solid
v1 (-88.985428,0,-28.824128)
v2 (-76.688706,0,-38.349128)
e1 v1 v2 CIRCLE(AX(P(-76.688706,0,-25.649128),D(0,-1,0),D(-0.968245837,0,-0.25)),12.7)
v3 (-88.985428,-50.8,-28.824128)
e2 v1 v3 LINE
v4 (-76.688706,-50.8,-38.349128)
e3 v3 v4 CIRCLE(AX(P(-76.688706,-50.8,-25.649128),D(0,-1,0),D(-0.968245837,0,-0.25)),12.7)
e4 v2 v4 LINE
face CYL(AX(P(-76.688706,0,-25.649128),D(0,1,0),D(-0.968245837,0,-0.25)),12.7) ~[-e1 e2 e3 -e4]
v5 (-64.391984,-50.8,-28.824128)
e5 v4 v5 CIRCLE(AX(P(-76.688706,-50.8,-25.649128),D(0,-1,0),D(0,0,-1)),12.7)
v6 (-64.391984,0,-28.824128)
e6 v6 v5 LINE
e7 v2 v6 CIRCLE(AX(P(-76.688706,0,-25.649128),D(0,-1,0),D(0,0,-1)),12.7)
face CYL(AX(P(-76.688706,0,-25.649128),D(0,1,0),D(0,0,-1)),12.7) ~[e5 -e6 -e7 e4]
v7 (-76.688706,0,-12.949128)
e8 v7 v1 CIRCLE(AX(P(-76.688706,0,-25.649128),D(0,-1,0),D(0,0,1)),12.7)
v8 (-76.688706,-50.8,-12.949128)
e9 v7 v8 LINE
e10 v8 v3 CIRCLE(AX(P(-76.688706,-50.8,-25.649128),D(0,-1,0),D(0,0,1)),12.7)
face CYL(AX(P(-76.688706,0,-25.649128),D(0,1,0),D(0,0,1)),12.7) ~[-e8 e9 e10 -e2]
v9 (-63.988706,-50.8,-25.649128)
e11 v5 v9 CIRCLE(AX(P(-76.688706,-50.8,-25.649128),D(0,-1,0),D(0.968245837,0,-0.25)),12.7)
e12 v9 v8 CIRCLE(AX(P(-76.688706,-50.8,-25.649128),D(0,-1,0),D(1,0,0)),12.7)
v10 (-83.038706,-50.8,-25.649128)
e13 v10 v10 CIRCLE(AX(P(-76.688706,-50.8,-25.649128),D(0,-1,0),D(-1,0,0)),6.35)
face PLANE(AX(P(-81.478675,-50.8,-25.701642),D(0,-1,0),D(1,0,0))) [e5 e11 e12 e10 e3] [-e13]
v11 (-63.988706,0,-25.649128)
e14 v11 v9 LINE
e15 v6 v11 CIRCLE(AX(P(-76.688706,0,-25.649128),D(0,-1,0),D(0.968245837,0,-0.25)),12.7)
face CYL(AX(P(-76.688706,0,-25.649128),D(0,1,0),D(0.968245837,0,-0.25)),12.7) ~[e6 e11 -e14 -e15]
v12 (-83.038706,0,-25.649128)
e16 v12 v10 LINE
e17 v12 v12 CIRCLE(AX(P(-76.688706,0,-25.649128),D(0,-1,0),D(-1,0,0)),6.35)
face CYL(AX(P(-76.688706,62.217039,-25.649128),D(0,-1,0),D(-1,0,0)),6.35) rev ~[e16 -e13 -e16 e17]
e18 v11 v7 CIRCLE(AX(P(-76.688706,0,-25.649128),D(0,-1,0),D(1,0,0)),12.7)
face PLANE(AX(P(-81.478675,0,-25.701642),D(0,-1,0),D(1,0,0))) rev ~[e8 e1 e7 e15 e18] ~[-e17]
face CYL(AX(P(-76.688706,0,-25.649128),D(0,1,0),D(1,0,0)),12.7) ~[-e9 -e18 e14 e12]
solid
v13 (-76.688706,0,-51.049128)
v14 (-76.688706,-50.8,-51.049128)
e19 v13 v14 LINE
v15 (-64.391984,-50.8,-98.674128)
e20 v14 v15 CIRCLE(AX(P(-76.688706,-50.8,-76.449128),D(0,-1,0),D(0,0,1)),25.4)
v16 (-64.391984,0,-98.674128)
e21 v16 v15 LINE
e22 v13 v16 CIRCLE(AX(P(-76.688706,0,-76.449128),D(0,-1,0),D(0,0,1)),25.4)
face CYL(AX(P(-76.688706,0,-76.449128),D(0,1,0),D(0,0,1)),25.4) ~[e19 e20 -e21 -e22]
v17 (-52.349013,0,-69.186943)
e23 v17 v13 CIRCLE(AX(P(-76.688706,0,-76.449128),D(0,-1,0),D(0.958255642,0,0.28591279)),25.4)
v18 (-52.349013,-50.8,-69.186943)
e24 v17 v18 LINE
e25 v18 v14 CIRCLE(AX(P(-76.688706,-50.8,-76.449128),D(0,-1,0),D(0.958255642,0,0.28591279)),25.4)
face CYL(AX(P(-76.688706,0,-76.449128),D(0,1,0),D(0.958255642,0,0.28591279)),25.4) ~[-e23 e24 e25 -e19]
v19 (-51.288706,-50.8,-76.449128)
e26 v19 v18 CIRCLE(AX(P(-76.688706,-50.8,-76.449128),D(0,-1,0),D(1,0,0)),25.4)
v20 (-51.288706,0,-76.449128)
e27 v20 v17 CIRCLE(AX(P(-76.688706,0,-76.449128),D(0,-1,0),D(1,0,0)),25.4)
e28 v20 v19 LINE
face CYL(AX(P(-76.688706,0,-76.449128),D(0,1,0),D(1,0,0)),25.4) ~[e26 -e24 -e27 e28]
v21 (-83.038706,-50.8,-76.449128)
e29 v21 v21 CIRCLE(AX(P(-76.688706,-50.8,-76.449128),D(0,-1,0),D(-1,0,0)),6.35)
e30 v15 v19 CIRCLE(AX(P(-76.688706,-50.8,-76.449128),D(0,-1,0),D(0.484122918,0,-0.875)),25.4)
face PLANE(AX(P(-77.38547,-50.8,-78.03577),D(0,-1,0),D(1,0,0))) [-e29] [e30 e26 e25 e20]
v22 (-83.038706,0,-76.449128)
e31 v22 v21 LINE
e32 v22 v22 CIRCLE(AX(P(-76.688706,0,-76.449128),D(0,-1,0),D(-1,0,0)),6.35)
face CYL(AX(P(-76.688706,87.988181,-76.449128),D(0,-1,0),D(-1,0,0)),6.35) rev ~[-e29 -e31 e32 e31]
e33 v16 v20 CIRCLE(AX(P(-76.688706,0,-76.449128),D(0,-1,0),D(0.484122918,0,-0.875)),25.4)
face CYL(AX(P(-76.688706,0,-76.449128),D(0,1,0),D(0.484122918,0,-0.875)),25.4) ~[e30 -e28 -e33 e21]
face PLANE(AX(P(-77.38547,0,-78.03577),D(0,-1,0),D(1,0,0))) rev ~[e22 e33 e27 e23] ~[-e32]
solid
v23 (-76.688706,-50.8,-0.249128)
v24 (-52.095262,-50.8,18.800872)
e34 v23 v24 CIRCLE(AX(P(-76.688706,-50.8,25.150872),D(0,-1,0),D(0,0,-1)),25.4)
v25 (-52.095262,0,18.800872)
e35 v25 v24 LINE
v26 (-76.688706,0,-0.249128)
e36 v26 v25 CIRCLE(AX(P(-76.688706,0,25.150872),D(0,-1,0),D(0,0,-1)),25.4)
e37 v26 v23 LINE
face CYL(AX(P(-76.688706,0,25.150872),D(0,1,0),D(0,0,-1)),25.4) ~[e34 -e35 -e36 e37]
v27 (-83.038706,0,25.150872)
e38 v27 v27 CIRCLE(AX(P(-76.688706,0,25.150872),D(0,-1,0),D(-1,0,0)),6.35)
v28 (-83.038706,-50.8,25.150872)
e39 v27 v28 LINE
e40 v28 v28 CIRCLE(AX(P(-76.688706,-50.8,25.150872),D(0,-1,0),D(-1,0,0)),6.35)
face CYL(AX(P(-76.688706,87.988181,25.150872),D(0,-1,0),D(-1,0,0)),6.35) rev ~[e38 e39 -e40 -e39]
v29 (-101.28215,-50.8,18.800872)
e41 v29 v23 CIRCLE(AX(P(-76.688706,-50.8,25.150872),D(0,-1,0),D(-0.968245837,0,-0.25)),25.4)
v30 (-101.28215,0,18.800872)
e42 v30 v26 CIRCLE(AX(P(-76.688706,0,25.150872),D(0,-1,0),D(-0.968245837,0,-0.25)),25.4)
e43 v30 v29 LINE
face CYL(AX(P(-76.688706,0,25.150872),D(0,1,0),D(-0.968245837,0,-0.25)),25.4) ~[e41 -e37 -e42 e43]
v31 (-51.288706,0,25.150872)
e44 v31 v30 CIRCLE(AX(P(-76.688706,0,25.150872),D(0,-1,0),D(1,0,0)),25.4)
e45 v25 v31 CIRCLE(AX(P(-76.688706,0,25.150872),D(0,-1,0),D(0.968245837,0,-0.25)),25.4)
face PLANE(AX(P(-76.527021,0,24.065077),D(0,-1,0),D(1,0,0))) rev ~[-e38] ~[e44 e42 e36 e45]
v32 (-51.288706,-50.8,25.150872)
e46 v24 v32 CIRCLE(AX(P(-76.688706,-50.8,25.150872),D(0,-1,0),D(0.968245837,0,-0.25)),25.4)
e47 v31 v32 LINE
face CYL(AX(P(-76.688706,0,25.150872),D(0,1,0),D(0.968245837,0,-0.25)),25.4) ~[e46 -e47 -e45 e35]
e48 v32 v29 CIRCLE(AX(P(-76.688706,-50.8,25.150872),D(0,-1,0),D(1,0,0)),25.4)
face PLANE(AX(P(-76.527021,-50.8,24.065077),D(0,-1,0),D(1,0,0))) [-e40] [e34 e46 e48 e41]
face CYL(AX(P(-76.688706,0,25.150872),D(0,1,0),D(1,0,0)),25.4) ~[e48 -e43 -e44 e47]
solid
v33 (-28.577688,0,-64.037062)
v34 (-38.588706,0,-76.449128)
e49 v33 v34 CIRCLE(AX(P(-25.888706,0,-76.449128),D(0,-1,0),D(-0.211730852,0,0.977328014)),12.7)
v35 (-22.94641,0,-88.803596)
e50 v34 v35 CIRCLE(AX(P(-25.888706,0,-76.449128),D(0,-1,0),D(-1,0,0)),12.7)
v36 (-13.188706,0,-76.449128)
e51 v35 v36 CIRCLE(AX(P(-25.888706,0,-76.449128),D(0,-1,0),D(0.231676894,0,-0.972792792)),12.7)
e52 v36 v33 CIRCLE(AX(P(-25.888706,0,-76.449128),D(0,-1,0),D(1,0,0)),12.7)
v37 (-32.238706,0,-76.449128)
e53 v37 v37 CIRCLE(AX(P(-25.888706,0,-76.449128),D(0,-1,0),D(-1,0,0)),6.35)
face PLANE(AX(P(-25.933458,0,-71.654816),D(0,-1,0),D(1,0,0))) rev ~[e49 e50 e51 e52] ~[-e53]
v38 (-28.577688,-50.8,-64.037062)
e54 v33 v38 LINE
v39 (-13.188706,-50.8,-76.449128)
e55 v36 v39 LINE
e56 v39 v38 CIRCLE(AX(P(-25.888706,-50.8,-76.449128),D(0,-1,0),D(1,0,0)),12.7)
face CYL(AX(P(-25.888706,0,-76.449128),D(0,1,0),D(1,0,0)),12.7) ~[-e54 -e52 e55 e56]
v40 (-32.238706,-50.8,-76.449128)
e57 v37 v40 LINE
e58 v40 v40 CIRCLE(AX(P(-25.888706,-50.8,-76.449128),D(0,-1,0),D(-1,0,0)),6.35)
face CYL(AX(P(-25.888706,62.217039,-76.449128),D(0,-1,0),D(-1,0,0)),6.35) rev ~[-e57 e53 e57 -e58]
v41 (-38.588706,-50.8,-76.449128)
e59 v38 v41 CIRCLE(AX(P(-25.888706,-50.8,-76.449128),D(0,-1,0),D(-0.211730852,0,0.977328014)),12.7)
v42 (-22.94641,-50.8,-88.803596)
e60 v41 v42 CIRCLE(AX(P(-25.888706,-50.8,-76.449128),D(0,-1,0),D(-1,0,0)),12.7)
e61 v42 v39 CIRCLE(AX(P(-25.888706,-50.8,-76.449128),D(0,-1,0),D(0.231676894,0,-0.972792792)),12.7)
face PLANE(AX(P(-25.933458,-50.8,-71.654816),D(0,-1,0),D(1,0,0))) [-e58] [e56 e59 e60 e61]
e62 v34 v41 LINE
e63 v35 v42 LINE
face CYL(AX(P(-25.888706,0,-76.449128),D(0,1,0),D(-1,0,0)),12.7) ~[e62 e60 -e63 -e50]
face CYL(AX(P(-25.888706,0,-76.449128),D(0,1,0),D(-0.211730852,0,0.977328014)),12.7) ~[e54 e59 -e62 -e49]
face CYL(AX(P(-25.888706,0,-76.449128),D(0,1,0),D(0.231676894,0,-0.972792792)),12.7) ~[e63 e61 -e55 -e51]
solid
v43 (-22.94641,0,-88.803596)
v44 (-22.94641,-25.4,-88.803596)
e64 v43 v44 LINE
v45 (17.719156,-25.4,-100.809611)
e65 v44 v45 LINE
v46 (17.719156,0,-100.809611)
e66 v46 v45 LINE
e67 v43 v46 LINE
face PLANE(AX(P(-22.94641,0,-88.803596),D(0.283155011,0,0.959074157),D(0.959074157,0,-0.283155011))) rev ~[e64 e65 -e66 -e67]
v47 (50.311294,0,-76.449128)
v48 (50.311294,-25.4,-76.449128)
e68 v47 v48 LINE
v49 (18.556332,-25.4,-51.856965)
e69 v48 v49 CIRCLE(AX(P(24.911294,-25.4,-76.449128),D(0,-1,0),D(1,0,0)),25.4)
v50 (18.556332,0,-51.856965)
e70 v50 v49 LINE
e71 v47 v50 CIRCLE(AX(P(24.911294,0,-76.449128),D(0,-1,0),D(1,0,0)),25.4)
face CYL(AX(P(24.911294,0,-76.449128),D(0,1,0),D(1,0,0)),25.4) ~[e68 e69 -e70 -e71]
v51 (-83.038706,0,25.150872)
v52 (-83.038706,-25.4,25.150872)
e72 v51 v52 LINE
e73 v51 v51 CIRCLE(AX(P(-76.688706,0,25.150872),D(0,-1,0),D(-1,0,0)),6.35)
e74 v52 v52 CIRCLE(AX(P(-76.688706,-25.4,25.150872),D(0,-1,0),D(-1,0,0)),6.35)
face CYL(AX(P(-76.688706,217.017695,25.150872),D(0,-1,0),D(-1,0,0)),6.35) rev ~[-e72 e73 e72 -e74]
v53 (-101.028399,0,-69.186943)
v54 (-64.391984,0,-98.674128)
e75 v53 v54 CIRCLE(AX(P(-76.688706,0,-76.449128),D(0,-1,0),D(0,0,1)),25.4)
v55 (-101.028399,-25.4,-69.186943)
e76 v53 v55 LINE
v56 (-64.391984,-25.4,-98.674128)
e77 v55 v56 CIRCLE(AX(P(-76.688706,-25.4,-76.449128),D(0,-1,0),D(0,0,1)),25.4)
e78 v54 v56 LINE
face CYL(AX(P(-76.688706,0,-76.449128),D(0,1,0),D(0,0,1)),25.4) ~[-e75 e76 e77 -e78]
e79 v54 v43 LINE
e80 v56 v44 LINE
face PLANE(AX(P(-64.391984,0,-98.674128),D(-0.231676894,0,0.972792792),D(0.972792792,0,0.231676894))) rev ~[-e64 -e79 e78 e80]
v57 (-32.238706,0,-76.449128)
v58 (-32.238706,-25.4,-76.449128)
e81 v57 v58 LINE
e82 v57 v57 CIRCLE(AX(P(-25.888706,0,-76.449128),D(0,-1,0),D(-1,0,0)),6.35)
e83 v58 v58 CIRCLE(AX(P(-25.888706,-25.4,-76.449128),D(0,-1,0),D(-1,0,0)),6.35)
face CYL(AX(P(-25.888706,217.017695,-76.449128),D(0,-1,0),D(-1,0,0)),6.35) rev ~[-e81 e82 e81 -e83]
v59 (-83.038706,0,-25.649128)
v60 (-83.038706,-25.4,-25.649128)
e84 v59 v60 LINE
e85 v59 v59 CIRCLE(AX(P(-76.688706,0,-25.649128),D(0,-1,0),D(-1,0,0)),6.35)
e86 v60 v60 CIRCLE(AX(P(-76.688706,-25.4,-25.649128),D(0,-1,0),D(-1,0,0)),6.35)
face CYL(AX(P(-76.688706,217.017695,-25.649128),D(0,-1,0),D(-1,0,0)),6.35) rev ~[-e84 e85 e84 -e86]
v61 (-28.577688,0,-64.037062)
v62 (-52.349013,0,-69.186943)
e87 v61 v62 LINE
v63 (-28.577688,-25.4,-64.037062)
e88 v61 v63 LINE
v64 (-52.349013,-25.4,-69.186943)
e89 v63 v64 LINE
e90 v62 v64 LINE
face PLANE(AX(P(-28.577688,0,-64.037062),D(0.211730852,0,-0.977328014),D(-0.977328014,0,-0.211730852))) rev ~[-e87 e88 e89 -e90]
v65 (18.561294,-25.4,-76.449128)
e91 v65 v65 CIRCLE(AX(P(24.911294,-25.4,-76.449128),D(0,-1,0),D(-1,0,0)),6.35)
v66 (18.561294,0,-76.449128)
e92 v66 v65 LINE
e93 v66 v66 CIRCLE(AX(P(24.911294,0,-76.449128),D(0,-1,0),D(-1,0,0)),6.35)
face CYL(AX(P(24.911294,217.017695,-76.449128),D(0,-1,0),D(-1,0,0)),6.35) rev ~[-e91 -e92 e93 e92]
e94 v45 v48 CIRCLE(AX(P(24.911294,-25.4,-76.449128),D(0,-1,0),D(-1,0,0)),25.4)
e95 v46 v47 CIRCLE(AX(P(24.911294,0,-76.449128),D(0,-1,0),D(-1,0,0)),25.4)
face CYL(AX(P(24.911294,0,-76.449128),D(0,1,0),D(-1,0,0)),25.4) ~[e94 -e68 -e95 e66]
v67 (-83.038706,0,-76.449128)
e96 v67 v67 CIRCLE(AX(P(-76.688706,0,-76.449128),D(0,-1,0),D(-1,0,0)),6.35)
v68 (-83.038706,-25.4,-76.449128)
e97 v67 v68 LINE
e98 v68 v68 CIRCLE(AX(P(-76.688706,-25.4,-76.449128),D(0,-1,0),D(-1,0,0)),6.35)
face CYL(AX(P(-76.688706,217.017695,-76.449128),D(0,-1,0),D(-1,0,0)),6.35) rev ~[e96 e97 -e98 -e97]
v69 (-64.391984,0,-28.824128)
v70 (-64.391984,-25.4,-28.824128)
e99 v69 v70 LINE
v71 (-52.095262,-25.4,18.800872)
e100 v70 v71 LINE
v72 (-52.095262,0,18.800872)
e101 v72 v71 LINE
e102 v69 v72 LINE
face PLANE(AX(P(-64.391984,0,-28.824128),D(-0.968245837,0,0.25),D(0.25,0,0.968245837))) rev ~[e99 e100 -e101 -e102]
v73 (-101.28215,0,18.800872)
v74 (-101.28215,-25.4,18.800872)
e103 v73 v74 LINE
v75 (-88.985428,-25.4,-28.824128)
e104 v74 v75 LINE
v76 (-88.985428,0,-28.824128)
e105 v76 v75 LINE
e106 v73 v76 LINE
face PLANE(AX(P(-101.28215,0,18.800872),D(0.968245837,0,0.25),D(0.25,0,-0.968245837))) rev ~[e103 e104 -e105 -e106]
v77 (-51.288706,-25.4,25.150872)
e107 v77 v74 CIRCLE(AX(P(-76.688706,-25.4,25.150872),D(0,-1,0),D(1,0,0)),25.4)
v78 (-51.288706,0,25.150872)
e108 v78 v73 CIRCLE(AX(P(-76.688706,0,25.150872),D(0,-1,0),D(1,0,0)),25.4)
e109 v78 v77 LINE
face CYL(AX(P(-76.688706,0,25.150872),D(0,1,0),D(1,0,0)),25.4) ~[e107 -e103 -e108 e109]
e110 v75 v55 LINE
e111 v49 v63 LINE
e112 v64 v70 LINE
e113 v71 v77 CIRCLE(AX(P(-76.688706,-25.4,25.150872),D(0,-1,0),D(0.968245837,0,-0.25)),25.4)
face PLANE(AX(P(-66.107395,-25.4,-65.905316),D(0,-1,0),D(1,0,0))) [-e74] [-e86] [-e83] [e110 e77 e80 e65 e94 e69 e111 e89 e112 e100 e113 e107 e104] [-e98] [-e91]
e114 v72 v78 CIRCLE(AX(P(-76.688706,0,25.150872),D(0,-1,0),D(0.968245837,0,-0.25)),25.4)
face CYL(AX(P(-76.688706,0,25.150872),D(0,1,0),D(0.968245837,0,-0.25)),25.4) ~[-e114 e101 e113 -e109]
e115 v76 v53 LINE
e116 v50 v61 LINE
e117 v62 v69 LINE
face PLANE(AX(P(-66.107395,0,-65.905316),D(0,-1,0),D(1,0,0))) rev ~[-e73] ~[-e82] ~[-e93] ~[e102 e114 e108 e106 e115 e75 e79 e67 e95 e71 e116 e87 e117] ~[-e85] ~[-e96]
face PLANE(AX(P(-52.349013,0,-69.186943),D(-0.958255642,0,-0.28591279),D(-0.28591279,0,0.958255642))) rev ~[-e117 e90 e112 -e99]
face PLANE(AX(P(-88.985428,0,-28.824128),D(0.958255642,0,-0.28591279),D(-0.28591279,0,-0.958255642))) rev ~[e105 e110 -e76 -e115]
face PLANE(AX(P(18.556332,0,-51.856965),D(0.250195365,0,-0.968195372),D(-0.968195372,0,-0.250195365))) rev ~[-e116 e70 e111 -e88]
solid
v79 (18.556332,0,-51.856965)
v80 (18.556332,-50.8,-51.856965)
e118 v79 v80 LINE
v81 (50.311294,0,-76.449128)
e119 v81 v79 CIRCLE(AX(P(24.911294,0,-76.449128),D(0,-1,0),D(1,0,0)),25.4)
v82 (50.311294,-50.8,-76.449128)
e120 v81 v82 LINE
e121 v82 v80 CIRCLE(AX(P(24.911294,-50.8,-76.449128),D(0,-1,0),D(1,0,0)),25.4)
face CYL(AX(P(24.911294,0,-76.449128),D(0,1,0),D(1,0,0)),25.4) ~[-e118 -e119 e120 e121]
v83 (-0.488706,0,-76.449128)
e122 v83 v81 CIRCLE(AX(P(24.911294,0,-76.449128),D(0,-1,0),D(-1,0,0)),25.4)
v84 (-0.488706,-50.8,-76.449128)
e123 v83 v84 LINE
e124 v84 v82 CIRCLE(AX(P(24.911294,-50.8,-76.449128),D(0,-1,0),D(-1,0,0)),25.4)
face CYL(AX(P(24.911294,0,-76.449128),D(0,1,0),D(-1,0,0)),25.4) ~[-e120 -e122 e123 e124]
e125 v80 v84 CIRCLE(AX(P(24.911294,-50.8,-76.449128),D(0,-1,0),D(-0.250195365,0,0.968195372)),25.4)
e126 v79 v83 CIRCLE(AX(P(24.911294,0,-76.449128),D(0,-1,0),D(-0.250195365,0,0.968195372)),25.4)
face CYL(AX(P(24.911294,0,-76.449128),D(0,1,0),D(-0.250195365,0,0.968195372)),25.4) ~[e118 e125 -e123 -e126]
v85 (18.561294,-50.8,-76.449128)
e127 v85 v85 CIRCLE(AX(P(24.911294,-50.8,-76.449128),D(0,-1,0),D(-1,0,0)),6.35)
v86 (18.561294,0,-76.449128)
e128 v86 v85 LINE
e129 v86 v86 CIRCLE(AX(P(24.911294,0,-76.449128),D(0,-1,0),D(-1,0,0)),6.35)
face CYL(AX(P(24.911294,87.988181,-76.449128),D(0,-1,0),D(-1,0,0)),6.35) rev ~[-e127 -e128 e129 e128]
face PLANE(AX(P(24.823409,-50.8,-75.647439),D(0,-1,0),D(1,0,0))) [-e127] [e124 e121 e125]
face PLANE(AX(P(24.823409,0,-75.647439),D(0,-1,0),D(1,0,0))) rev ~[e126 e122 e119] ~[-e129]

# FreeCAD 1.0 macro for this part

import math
import FreeCAD as App
import Part
import Sketcher

V = App.Vector
Q = App.Units.Quantity

doc = App.newDocument("Part")
params = doc.addObject("Spreadsheet::Sheet", "Params")
for row, (alias, value) in enumerate([
    ("sketch1_radius", "1 in"),
    ("pad1_length", "2 in"),
    ("sketch2_diameter", "0.5 in"),
    ("hole_diameter", "0.5 in"),
    ("sketch3_radius", "1 in"),
    ("pad2_length", "2 in"),
    ("sketch4_diameter", "0.5 in"),
    ("hole2_diameter", "0.5 in"),
    ("sketch5_radius", "0.5 in"),
    ("pad3_length", "2 in"),
    ("sketch6_diameter", "0.5 in"),
    ("hole3_diameter", "0.5 in"),
    ("sketch7_radius", "1 in"),
    ("sketch7_height", "0.875 in"),
    ("pad4_length", "2 in"),
    ("sketch8_diameter", "0.5 in"),
    ("hole4_diameter", "0.5 in"),
    ("sketch9_radius", "0.5 in"),
    ("pad5_length", "2 in"),
    ("sketch10_diameter", "0.5 in"),
    ("hole5_diameter", "0.5 in"),
    ("sketch11_radius", "1 in"),
    ("sketch11_height", "0.875 in"),
    ("pad6_length", "1 in"),
    ("sketch12_diameter", "0.5 in"),
    ("hole6_diameter", "0.5 in"),
], start=1):
    params.set(f"A{row}", alias)
    params.set(f"B{row}", "=" + value)
    params.setAlias(f"B{row}", alias)

body = doc.addObject("PartDesign::Body", "Body")

sketch1 = doc.addObject("Sketcher::SketchObject", "Sketch")
body.addObject(sketch1)
sketch1.AttachmentSupport = (doc.XZ_Plane, [""])
sketch1.MapMode = "FlatFace"
sketch1.addGeometry([
    Part.ArcOfCircle(Part.Circle(V(-77, 25, 0), V(0, 0, 1), 25), math.radians(-90), math.radians(-14)),
    Part.ArcOfCircle(Part.Circle(V(-77, 25, 0), V(0, 0, 1), 25), math.radians(-14.48), math.radians(0)),
    Part.ArcOfCircle(Part.Circle(V(-77, 25, 0), V(0, 0, 1), 25), math.radians(0), math.radians(194)),
    Part.ArcOfCircle(Part.Circle(V(-77, 25, 0), V(0, 0, 1), 25), math.radians(-166), math.radians(-90)),
], False)
sketch1.addConstraint([
    Sketcher.Constraint("Tangent", 0, 2, 1, 1),
    Sketcher.Constraint("Tangent", 1, 2, 2, 1),
    Sketcher.Constraint("Tangent", 2, 2, 3, 1),
    Sketcher.Constraint("Tangent", 3, 2, 0, 1),
    Sketcher.Constraint("Equal", 0, 1),
    Sketcher.Constraint("Horizontal", 3, 3, 1, 2),
    Sketcher.Constraint("Horizontal", 0, 2, 2, 2),
    Sketcher.Constraint("Vertical", 2, 3, 3, 2),
    Sketcher.Constraint("Radius", 0, Q("1 in")),
    Sketcher.Constraint("DistanceY", 0, 2, 1, 3, Q("0.25 in")),
    Sketcher.Constraint("DistanceX", 0, 2, -1, 1, 52.095262),
    Sketcher.Constraint("DistanceY", -1, 1, 0, 3, 25.150872),
])
sketch1.setExpression("Constraints[8]", "Params.sketch1_radius")
pad1 = doc.addObject("PartDesign::Pad", "Pad")
body.addObject(pad1)
pad1.Profile = sketch1
pad1.setExpression("Length", "Params.pad1_length")

sketch2 = doc.addObject("Sketcher::SketchObject", "Sketch001")
body.addObject(sketch2)
sketch2.AttachmentSupport = (doc.XZ_Plane, [""])
sketch2.MapMode = "FlatFace"
sketch2.addGeometry([
    Part.Circle(V(-77, 25, 0), V(0, 0, 1), 6),
    Part.Circle(V(-77, -26, 0), V(0, 0, 1), 6),
    Part.Circle(V(-77, -76, 0), V(0, 0, 1), 6),
    Part.Circle(V(-26, -76, 0), V(0, 0, 1), 6),
    Part.Circle(V(25, -76, 0), V(0, 0, 1), 6),
], False)
sketch2.addConstraint([
    Sketcher.Constraint("Equal", 0, 1),
    Sketcher.Constraint("Equal", 1, 2),
    Sketcher.Constraint("Equal", 2, 3),
    Sketcher.Constraint("Equal", 3, 4),
    Sketcher.Constraint("Horizontal", 2, 3, 3, 3),
    Sketcher.Constraint("Horizontal", 3, 3, 4, 3),
    Sketcher.Constraint("Vertical", 0, 3, 1, 3),
    Sketcher.Constraint("Vertical", 1, 3, 2, 3),
    Sketcher.Constraint("Diameter", 0, Q("0.5 in")),
    Sketcher.Constraint("DistanceY", 1, 3, 0, 3, Q("2 in")),
    Sketcher.Constraint("DistanceY", 2, 3, 1, 3, Q("2 in")),
    Sketcher.Constraint("DistanceX", 2, 3, 3, 3, Q("2 in")),
    Sketcher.Constraint("DistanceX", 3, 3, 4, 3, Q("2 in")),
    Sketcher.Constraint("DistanceX", 0, 3, -1, 1, 76.688706),
    Sketcher.Constraint("DistanceY", -1, 1, 0, 3, 25.150872),
])
sketch2.setExpression("Constraints[8]", "Params.sketch2_diameter")
doc.recompute()
hole = doc.addObject("PartDesign::Hole", "Hole")
body.addObject(hole)
hole.Profile = sketch2
hole.ThreadType = "None"
hole.setExpression("Diameter", "Params.hole_diameter")
hole.DepthType = "ThroughAll"
hole.Reversed = True
body2 = doc.addObject("PartDesign::Body", "Body001")

sketch3 = doc.addObject("Sketcher::SketchObject", "Sketch002")
body2.addObject(sketch3)
sketch3.AttachmentSupport = (doc.getObject("XZ_Plane001"), [""])
sketch3.MapMode = "FlatFace"
sketch3.addGeometry([
    Part.ArcOfCircle(Part.Circle(V(25, -76, 0), V(0, 0, 1), 25), math.radians(0), math.radians(104)),
    Part.ArcOfCircle(Part.Circle(V(25, -76, 0), V(0, 0, 1), 25), math.radians(104), math.radians(180)),
    Part.ArcOfCircle(Part.Circle(V(25, -76, 0), V(0, 0, 1), 25), math.radians(180), math.radians(360)),
], False)
sketch3.addConstraint([
    Sketcher.Constraint("Tangent", 0, 2, 1, 1),
    Sketcher.Constraint("Tangent", 1, 2, 2, 1),
    Sketcher.Constraint("Tangent", 2, 2, 0, 1),
    Sketcher.Constraint("Horizontal", 2, 3, 1, 2),
    Sketcher.Constraint("Horizontal", 1, 2, 2, 2),
    Sketcher.Constraint("Radius", 0, Q("1 in")),
    Sketcher.Constraint("DistanceX", -1, 1, 0, 2, 18.556332),
    Sketcher.Constraint("DistanceX", -1, 1, 0, 3, 24.911294),
    Sketcher.Constraint("DistanceY", 0, 3, -1, 1, 76.449128),
])
sketch3.setExpression("Constraints[5]", "Params.sketch3_radius")
pad2 = doc.addObject("PartDesign::Pad", "Pad001")
body2.addObject(pad2)
pad2.Profile = sketch3
pad2.setExpression("Length", "Params.pad2_length")

sketch4 = doc.addObject("Sketcher::SketchObject", "Sketch003")
body2.addObject(sketch4)
sketch4.AttachmentSupport = (doc.getObject("XZ_Plane001"), [""])
sketch4.MapMode = "FlatFace"
sketch4.addGeometry([
    Part.Circle(V(-77, 25, 0), V(0, 0, 1), 6),
    Part.Circle(V(-77, -26, 0), V(0, 0, 1), 6),
    Part.Circle(V(-77, -76, 0), V(0, 0, 1), 6),
    Part.Circle(V(-26, -76, 0), V(0, 0, 1), 6),
    Part.Circle(V(25, -76, 0), V(0, 0, 1), 6),
], False)
sketch4.addConstraint([
    Sketcher.Constraint("Equal", 0, 1),
    Sketcher.Constraint("Equal", 1, 2),
    Sketcher.Constraint("Equal", 2, 3),
    Sketcher.Constraint("Equal", 3, 4),
    Sketcher.Constraint("Horizontal", 2, 3, 3, 3),
    Sketcher.Constraint("Horizontal", 3, 3, 4, 3),
    Sketcher.Constraint("Vertical", 0, 3, 1, 3),
    Sketcher.Constraint("Vertical", 1, 3, 2, 3),
    Sketcher.Constraint("Diameter", 0, Q("0.5 in")),
    Sketcher.Constraint("DistanceY", 1, 3, 0, 3, Q("2 in")),
    Sketcher.Constraint("DistanceY", 2, 3, 1, 3, Q("2 in")),
    Sketcher.Constraint("DistanceX", 2, 3, 3, 3, Q("2 in")),
    Sketcher.Constraint("DistanceX", 3, 3, 4, 3, Q("2 in")),
    Sketcher.Constraint("DistanceX", 0, 3, -1, 1, 76.688706),
    Sketcher.Constraint("DistanceY", -1, 1, 0, 3, 25.150872),
])
sketch4.setExpression("Constraints[8]", "Params.sketch4_diameter")
doc.recompute()
hole2 = doc.addObject("PartDesign::Hole", "Hole001")
body2.addObject(hole2)
hole2.Profile = sketch4
hole2.ThreadType = "None"
hole2.setExpression("Diameter", "Params.hole2_diameter")
hole2.DepthType = "ThroughAll"
hole2.Reversed = True
body3 = doc.addObject("PartDesign::Body", "Body002")

sketch5 = doc.addObject("Sketcher::SketchObject", "Sketch004")
body3.addObject(sketch5)
sketch5.AttachmentSupport = (doc.getObject("XZ_Plane002"), [""])
sketch5.MapMode = "FlatFace"
sketch5.addGeometry([
    Part.ArcOfCircle(Part.Circle(V(-76.7, -25.6, 0), V(0, 0, 1), 12.7), math.radians(-166), math.radians(-90)),
    Part.ArcOfCircle(Part.Circle(V(-76.7, -25.6, 0), V(0, 0, 1), 12.7), math.radians(-90), math.radians(-14)),
    Part.ArcOfCircle(Part.Circle(V(-76.7, -25.6, 0), V(0, 0, 1), 12.7), math.radians(-14.48), math.radians(0)),
    Part.ArcOfCircle(Part.Circle(V(-76.7, -25.6, 0), V(0, 0, 1), 12.7), math.radians(0), math.radians(90)),
    Part.ArcOfCircle(Part.Circle(V(-76.7, -25.6, 0), V(0, 0, 1), 12.7), math.radians(90), math.radians(194)),
], False)
sketch5.addConstraint([
    Sketcher.Constraint("Tangent", 0, 2, 1, 1),
    Sketcher.Constraint("Tangent", 1, 2, 2, 1),
    Sketcher.Constraint("Tangent", 2, 2, 3, 1),
    Sketcher.Constraint("Tangent", 3, 2, 4, 1),
    Sketcher.Constraint("Tangent", 4, 2, 0, 1),
    Sketcher.Constraint("Coincident", 2, 3, 0, 3),
    Sketcher.Constraint("Horizontal", 4, 3, 2, 2),
    Sketcher.Constraint("Horizontal", 1, 2, 4, 2),
    Sketcher.Constraint("Vertical", 4, 3, 0, 2),
    Sketcher.Constraint("Vertical", 0, 2, 3, 2),
    Sketcher.Constraint("Radius", 0, Q("0.5 in")),
    Sketcher.Constraint("DistanceY", 1, 2, 2, 3, Q("0.125 in")),
    Sketcher.Constraint("DistanceX", 4, 2, -1, 1, 88.985428),
    Sketcher.Constraint("DistanceY", 0, 3, -1, 1, 25.649128),
])
sketch5.setExpression("Constraints[10]", "Params.sketch5_radius")
pad3 = doc.addObject("PartDesign::Pad", "Pad002")
body3.addObject(pad3)
pad3.Profile = sketch5
pad3.setExpression("Length", "Params.pad3_length")

sketch6 = doc.addObject("Sketcher::SketchObject", "Sketch005")
body3.addObject(sketch6)
sketch6.AttachmentSupport = (doc.getObject("XZ_Plane002"), [""])
sketch6.MapMode = "FlatFace"
sketch6.addGeometry([
    Part.Circle(V(-77, 25, 0), V(0, 0, 1), 6),
    Part.Circle(V(-77, -26, 0), V(0, 0, 1), 6),
    Part.Circle(V(-77, -76, 0), V(0, 0, 1), 6),
    Part.Circle(V(-26, -76, 0), V(0, 0, 1), 6),
    Part.Circle(V(25, -76, 0), V(0, 0, 1), 6),
], False)
sketch6.addConstraint([
    Sketcher.Constraint("Equal", 0, 1),
    Sketcher.Constraint("Equal", 1, 2),
    Sketcher.Constraint("Equal", 2, 3),
    Sketcher.Constraint("Equal", 3, 4),
    Sketcher.Constraint("Horizontal", 2, 3, 3, 3),
    Sketcher.Constraint("Horizontal", 3, 3, 4, 3),
    Sketcher.Constraint("Vertical", 0, 3, 1, 3),
    Sketcher.Constraint("Vertical", 1, 3, 2, 3),
    Sketcher.Constraint("Diameter", 0, Q("0.5 in")),
    Sketcher.Constraint("DistanceY", 1, 3, 0, 3, Q("2 in")),
    Sketcher.Constraint("DistanceY", 2, 3, 1, 3, Q("2 in")),
    Sketcher.Constraint("DistanceX", 2, 3, 3, 3, Q("2 in")),
    Sketcher.Constraint("DistanceX", 3, 3, 4, 3, Q("2 in")),
    Sketcher.Constraint("DistanceX", 0, 3, -1, 1, 76.688706),
    Sketcher.Constraint("DistanceY", -1, 1, 0, 3, 25.150872),
])
sketch6.setExpression("Constraints[8]", "Params.sketch6_diameter")
doc.recompute()
hole3 = doc.addObject("PartDesign::Hole", "Hole002")
body3.addObject(hole3)
hole3.Profile = sketch6
hole3.ThreadType = "None"
hole3.setExpression("Diameter", "Params.hole3_diameter")
hole3.DepthType = "ThroughAll"
hole3.Reversed = True
body4 = doc.addObject("PartDesign::Body", "Body003")

sketch7 = doc.addObject("Sketcher::SketchObject", "Sketch006")
body4.addObject(sketch7)
sketch7.AttachmentSupport = (doc.getObject("XZ_Plane003"), [""])
sketch7.MapMode = "FlatFace"
sketch7.addGeometry([
    Part.ArcOfCircle(Part.Circle(V(-77, -76, 0), V(0, 0, 1), 25), math.radians(90), math.radians(299)),
    Part.ArcOfCircle(Part.Circle(V(-77, -76, 0), V(0, 0, 1), 25), math.radians(-61), math.radians(0)),
    Part.ArcOfCircle(Part.Circle(V(-77, -76, 0), V(0, 0, 1), 25), math.radians(0), math.radians(16.61)),
    Part.ArcOfCircle(Part.Circle(V(-77, -76, 0), V(0, 0, 1), 25), math.radians(17), math.radians(90)),
], False)
sketch7.addConstraint([
    Sketcher.Constraint("Tangent", 0, 2, 1, 1),
    Sketcher.Constraint("Tangent", 1, 2, 2, 1),
    Sketcher.Constraint("Tangent", 2, 2, 3, 1),
    Sketcher.Constraint("Tangent", 3, 2, 0, 1),
    Sketcher.Constraint("Equal", 0, 1),
    Sketcher.Constraint("Horizontal", 3, 3, 1, 2),
    Sketcher.Constraint("Vertical", 2, 3, 3, 2),
    Sketcher.Constraint("Radius", 0, Q("1 in")),
    Sketcher.Constraint("DistanceY", 0, 2, 0, 3, Q("0.875 in")),
    Sketcher.Constraint("DistanceX", 0, 3, -1, 1, 76.688706),
    Sketcher.Constraint("DistanceY", 0, 3, -1, 1, 76.449128),
    Sketcher.Constraint("DistanceX", 2, 2, -1, 1, 52.349013),
])
sketch7.setExpression("Constraints[7]", "Params.sketch7_radius")
sketch7.setExpression("Constraints[8]", "Params.sketch7_height")
pad4 = doc.addObject("PartDesign::Pad", "Pad003")
body4.addObject(pad4)
pad4.Profile = sketch7
pad4.setExpression("Length", "Params.pad4_length")

sketch8 = doc.addObject("Sketcher::SketchObject", "Sketch007")
body4.addObject(sketch8)
sketch8.AttachmentSupport = (doc.getObject("XZ_Plane003"), [""])
sketch8.MapMode = "FlatFace"
sketch8.addGeometry([
    Part.Circle(V(-77, 25, 0), V(0, 0, 1), 6),
    Part.Circle(V(-77, -26, 0), V(0, 0, 1), 6),
    Part.Circle(V(-77, -76, 0), V(0, 0, 1), 6),
    Part.Circle(V(-26, -76, 0), V(0, 0, 1), 6),
    Part.Circle(V(25, -76, 0), V(0, 0, 1), 6),
], False)
sketch8.addConstraint([
    Sketcher.Constraint("Equal", 0, 1),
    Sketcher.Constraint("Equal", 1, 2),
    Sketcher.Constraint("Equal", 2, 3),
    Sketcher.Constraint("Equal", 3, 4),
    Sketcher.Constraint("Horizontal", 2, 3, 3, 3),
    Sketcher.Constraint("Horizontal", 3, 3, 4, 3),
    Sketcher.Constraint("Vertical", 0, 3, 1, 3),
    Sketcher.Constraint("Vertical", 1, 3, 2, 3),
    Sketcher.Constraint("Diameter", 0, Q("0.5 in")),
    Sketcher.Constraint("DistanceY", 1, 3, 0, 3, Q("2 in")),
    Sketcher.Constraint("DistanceY", 2, 3, 1, 3, Q("2 in")),
    Sketcher.Constraint("DistanceX", 2, 3, 3, 3, Q("2 in")),
    Sketcher.Constraint("DistanceX", 3, 3, 4, 3, Q("2 in")),
    Sketcher.Constraint("DistanceX", 0, 3, -1, 1, 76.688706),
    Sketcher.Constraint("DistanceY", -1, 1, 0, 3, 25.150872),
])
sketch8.setExpression("Constraints[8]", "Params.sketch8_diameter")
doc.recompute()
hole4 = doc.addObject("PartDesign::Hole", "Hole003")
body4.addObject(hole4)
hole4.Profile = sketch8
hole4.ThreadType = "None"
hole4.setExpression("Diameter", "Params.hole4_diameter")
hole4.DepthType = "ThroughAll"
hole4.Reversed = True
body5 = doc.addObject("PartDesign::Body", "Body004")

sketch9 = doc.addObject("Sketcher::SketchObject", "Sketch008")
body5.addObject(sketch9)
sketch9.AttachmentSupport = (doc.getObject("XZ_Plane004"), [""])
sketch9.MapMode = "FlatFace"
sketch9.addGeometry([
    Part.ArcOfCircle(Part.Circle(V(-26, -76, 0), V(0, 0, 1), 13), math.radians(102), math.radians(180)),
    Part.ArcOfCircle(Part.Circle(V(-26, -76, 0), V(0, 0, 1), 13), math.radians(180), math.radians(283)),
    Part.ArcOfCircle(Part.Circle(V(-26, -76, 0), V(0, 0, 1), 13), math.radians(-77), math.radians(0)),
    Part.ArcOfCircle(Part.Circle(V(-26, -76, 0), V(0, 0, 1), 13), math.radians(0), math.radians(102)),
], False)
sketch9.addConstraint([
    Sketcher.Constraint("Tangent", 0, 2, 1, 1),
    Sketcher.Constraint("Tangent", 1, 2, 2, 1),
    Sketcher.Constraint("Tangent", 2, 2, 3, 1),
    Sketcher.Constraint("Tangent", 3, 2, 0, 1),
    Sketcher.Constraint("Equal", 0, 1),
    Sketcher.Constraint("Horizontal", 3, 3, 0, 2),
    Sketcher.Constraint("Horizontal", 0, 2, 2, 2),
    Sketcher.Constraint("Radius", 0, Q("0.5 in")),
    Sketcher.Constraint("DistanceX", 1, 2, -1, 1, 22.94641),
    Sketcher.Constraint("DistanceY", 1, 2, 0, 3, 12.354468),
    Sketcher.Constraint("DistanceX", 3, 2, 0, 3, 2.688982),
    Sketcher.Constraint("DistanceY", 0, 3, -1, 1, 76.449128),
])
sketch9.setExpression("Constraints[7]", "Params.sketch9_radius")
pad5 = doc.addObject("PartDesign::Pad", "Pad004")
body5.addObject(pad5)
pad5.Profile = sketch9
pad5.setExpression("Length", "Params.pad5_length")

sketch10 = doc.addObject("Sketcher::SketchObject", "Sketch009")
body5.addObject(sketch10)
sketch10.AttachmentSupport = (doc.getObject("XZ_Plane004"), [""])
sketch10.MapMode = "FlatFace"
sketch10.addGeometry([
    Part.Circle(V(-77, 25, 0), V(0, 0, 1), 6),
    Part.Circle(V(-77, -26, 0), V(0, 0, 1), 6),
    Part.Circle(V(-77, -76, 0), V(0, 0, 1), 6),
    Part.Circle(V(-26, -76, 0), V(0, 0, 1), 6),
    Part.Circle(V(25, -76, 0), V(0, 0, 1), 6),
], False)
sketch10.addConstraint([
    Sketcher.Constraint("Equal", 0, 1),
    Sketcher.Constraint("Equal", 1, 2),
    Sketcher.Constraint("Equal", 2, 3),
    Sketcher.Constraint("Equal", 3, 4),
    Sketcher.Constraint("Horizontal", 2, 3, 3, 3),
    Sketcher.Constraint("Horizontal", 3, 3, 4, 3),
    Sketcher.Constraint("Vertical", 0, 3, 1, 3),
    Sketcher.Constraint("Vertical", 1, 3, 2, 3),
    Sketcher.Constraint("Diameter", 0, Q("0.5 in")),
    Sketcher.Constraint("DistanceY", 1, 3, 0, 3, Q("2 in")),
    Sketcher.Constraint("DistanceY", 2, 3, 1, 3, Q("2 in")),
    Sketcher.Constraint("DistanceX", 2, 3, 3, 3, Q("2 in")),
    Sketcher.Constraint("DistanceX", 3, 3, 4, 3, Q("2 in")),
    Sketcher.Constraint("DistanceX", 0, 3, -1, 1, 76.688706),
    Sketcher.Constraint("DistanceY", -1, 1, 0, 3, 25.150872),
])
sketch10.setExpression("Constraints[8]", "Params.sketch10_diameter")
doc.recompute()
hole5 = doc.addObject("PartDesign::Hole", "Hole004")
body5.addObject(hole5)
hole5.Profile = sketch10
hole5.ThreadType = "None"
hole5.setExpression("Diameter", "Params.hole5_diameter")
hole5.DepthType = "ThroughAll"
hole5.Reversed = True
body6 = doc.addObject("PartDesign::Body", "Body005")

sketch11 = doc.addObject("Sketcher::SketchObject", "Sketch010")
body6.addObject(sketch11)
sketch11.AttachmentSupport = (doc.getObject("XZ_Plane005"), [""])
sketch11.MapMode = "FlatFace"
sketch11.addGeometry([
    Part.LineSegment(V(-89, -29, 0), V(-101, -69, 0)),
    Part.ArcOfCircle(Part.Circle(V(-77, -76, 0), V(0, 0, 1), 25), math.radians(163), math.radians(299)),
    Part.LineSegment(V(-64, -99, 0), V(-23, -89, 0)),
    Part.LineSegment(V(-23, -89, 0), V(18, -101, 0)),
    Part.ArcOfCircle(Part.Circle(V(25, -76, 0), V(0, 0, 1), 25), math.radians(-106), math.radians(0)),
    Part.ArcOfCircle(Part.Circle(V(25, -76, 0), V(0, 0, 1), 25), math.radians(0), math.radians(104)),
    Part.LineSegment(V(19, -52, 0), V(-29, -64, 0)),
    Part.LineSegment(V(-29, -64, 0), V(-52, -69, 0)),
    Part.LineSegment(V(-52, -69, 0), V(-64, -29, 0)),
    Part.LineSegment(V(-64, -29, 0), V(-52, 19, 0)),
    Part.ArcOfCircle(Part.Circle(V(-77, 25, 0), V(0, 0, 1), 25), math.radians(-14.48), math.radians(0)),
    Part.ArcOfCircle(Part.Circle(V(-77, 25, 0), V(0, 0, 1), 25), math.radians(0), math.radians(194)),
    Part.LineSegment(V(-101, 19, 0), V(-89, -29, 0)),
], False)
sketch11.addConstraint([
    Sketcher.Constraint("Tangent", 0, 2, 1, 1),
    Sketcher.Constraint("Coincident", 1, 2, 2, 1),
    Sketcher.Constraint("Coincident", 2, 2, 3, 1),
    Sketcher.Constraint("Tangent", 3, 2, 4, 1),
    Sketcher.Constraint("Tangent", 4, 2, 5, 1),
    Sketcher.Constraint("Tangent", 5, 2, 6, 1),
    Sketcher.Constraint("Coincident", 6, 2, 7, 1),
    Sketcher.Constraint("Coincident", 7, 2, 8, 1),
    Sketcher.Constraint("Coincident", 8, 2, 9, 1),
    Sketcher.Constraint("Tangent", 9, 2, 10, 1),
    Sketcher.Constraint("Tangent", 10, 2, 11, 1),
    Sketcher.Constraint("Tangent", 11, 2, 12, 1),
    Sketcher.Constraint("Coincident", 12, 2, 0, 1),
    Sketcher.Constraint("Equal", 1, 4),
    Sketcher.Constraint("Equal", 4, 5),
    Sketcher.Constraint("Equal", 5, 10),
    Sketcher.Constraint("Equal", 10, 11),
    Sketcher.Constraint("Horizontal", 1, 3, 4, 3),
    Sketcher.Constraint("Horizontal", 5, 3, 4, 2),
    Sketcher.Constraint("Horizontal", 0, 2, 7, 2),
    Sketcher.Constraint("Horizontal", 11, 3, 10, 2),
    Sketcher.Constraint("Horizontal", 9, 2, 11, 2),
    Sketcher.Constraint("Horizontal", 8, 2, 12, 2),
    Sketcher.Constraint("Vertical", 1, 3, 10, 3),
    Sketcher.Constraint("Vertical", 1, 2, 8, 2),
    Sketcher.Constraint("Equal", 0, 8),
    Sketcher.Constraint("Radius", 1, Q("1 in")),
    Sketcher.Constraint("DistanceX", 1, 3, 4, 3, Q("4 in")),
    Sketcher.Constraint("DistanceY", 1, 3, 10, 3, Q("4 in")),
    Sketcher.Constraint("DistanceY", 9, 2, 10, 3, Q("0.25 in")),
    Sketcher.Constraint("DistanceY", 1, 2, 1, 3, Q("0.875 in")),
    Sketcher.Constraint("DistanceX", 0, 2, -1, 1, 101.028399),
    Sketcher.Constraint("Distance", 2, 42.60473),
    Sketcher.Constraint("Distance", 7, 24.32277),
    Sketcher.Constraint("DistanceX", 2, 2, -1, 1, 22.94641),
    Sketcher.Constraint("DistanceY", 3, 2, -1, 1, 100.809611),
    Sketcher.Constraint("DistanceX", -1, 1, 5, 2, 18.556332),
])
sketch11.setExpression("Constraints[26]", "Params.sketch11_radius")
sketch11.setExpression("Constraints[30]", "Params.sketch11_height")
pad6 = doc.addObject("PartDesign::Pad", "Pad005")
body6.addObject(pad6)
pad6.Profile = sketch11
pad6.setExpression("Length", "Params.pad6_length")

sketch12 = doc.addObject("Sketcher::SketchObject", "Sketch011")
body6.addObject(sketch12)
sketch12.AttachmentSupport = (doc.getObject("XZ_Plane005"), [""])
sketch12.MapMode = "FlatFace"
sketch12.addGeometry([
    Part.Circle(V(-77, 25, 0), V(0, 0, 1), 6),
    Part.Circle(V(-77, -26, 0), V(0, 0, 1), 6),
    Part.Circle(V(-77, -76, 0), V(0, 0, 1), 6),
    Part.Circle(V(-26, -76, 0), V(0, 0, 1), 6),
    Part.Circle(V(25, -76, 0), V(0, 0, 1), 6),
], False)
sketch12.addConstraint([
    Sketcher.Constraint("Equal", 0, 1),
    Sketcher.Constraint("Equal", 1, 2),
    Sketcher.Constraint("Equal", 2, 3),
    Sketcher.Constraint("Equal", 3, 4),
    Sketcher.Constraint("Horizontal", 2, 3, 3, 3),
    Sketcher.Constraint("Horizontal", 3, 3, 4, 3),
    Sketcher.Constraint("Vertical", 0, 3, 1, 3),
    Sketcher.Constraint("Vertical", 1, 3, 2, 3),
    Sketcher.Constraint("Diameter", 0, Q("0.5 in")),
    Sketcher.Constraint("DistanceY", 1, 3, 0, 3, Q("2 in")),
    Sketcher.Constraint("DistanceY", 2, 3, 1, 3, Q("2 in")),
    Sketcher.Constraint("DistanceX", 2, 3, 3, 3, Q("2 in")),
    Sketcher.Constraint("DistanceX", 3, 3, 4, 3, Q("2 in")),
    Sketcher.Constraint("DistanceX", 0, 3, -1, 1, 76.688706),
    Sketcher.Constraint("DistanceY", -1, 1, 0, 3, 25.150872),
])
sketch12.setExpression("Constraints[8]", "Params.sketch12_diameter")
doc.recompute()
hole6 = doc.addObject("PartDesign::Hole", "Hole005")
body6.addObject(hole6)
hole6.Profile = sketch12
hole6.ThreadType = "None"
hole6.setExpression("Diameter", "Params.hole6_diameter")
hole6.DepthType = "ThroughAll"
hole6.Reversed = True

doc.recompute()
